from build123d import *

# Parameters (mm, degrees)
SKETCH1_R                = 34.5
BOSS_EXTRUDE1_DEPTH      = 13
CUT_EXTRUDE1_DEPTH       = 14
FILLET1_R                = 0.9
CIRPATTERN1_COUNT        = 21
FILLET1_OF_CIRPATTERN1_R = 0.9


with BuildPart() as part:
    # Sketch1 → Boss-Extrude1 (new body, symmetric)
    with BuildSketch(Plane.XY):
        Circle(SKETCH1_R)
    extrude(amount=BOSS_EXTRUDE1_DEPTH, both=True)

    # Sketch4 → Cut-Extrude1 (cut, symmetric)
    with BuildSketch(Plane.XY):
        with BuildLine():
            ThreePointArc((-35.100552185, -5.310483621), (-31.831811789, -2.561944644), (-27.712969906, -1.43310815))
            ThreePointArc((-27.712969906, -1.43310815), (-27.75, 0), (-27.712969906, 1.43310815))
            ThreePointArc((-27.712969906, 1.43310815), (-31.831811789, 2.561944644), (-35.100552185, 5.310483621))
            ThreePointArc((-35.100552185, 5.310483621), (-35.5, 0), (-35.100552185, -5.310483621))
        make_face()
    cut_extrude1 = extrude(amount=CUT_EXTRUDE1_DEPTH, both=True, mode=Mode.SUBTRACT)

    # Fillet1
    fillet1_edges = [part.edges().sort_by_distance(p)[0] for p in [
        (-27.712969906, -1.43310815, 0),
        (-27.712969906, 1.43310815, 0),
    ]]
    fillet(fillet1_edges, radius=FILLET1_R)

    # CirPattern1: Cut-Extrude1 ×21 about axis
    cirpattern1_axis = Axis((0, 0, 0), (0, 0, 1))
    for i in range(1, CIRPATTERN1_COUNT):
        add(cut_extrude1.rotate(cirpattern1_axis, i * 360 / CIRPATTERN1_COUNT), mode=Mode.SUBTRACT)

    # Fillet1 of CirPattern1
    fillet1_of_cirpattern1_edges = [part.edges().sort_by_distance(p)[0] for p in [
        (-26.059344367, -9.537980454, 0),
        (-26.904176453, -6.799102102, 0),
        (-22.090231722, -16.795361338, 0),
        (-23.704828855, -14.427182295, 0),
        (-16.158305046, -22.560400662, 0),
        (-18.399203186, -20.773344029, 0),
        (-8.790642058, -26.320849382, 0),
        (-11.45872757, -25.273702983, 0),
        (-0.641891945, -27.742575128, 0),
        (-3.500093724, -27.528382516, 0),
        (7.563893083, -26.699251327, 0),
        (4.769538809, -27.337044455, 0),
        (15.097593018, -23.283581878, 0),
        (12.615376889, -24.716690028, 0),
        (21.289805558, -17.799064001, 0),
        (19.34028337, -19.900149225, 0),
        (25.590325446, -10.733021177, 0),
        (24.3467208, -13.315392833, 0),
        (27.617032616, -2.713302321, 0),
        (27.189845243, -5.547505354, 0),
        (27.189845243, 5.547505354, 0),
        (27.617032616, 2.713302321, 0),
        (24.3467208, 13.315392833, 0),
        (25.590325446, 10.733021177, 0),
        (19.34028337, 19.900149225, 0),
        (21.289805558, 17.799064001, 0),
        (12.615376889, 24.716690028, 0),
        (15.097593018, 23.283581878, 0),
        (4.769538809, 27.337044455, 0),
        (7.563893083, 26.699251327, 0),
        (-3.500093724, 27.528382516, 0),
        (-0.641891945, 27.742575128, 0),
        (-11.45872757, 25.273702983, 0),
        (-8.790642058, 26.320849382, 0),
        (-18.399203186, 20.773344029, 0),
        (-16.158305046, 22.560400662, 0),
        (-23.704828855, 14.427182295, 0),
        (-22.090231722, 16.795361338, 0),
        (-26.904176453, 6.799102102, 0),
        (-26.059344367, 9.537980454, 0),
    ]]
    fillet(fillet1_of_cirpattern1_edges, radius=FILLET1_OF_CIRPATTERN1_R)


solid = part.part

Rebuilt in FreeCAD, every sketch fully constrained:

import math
import FreeCAD as App
import Part
import Sketcher
Q = App.Units.Quantity


def edges_at(feature, points):
    """Names of the edges that pass closest to the given points."""
    edges = feature.Shape.Edges
    near = lambda p: min(range(len(edges)), key=lambda i: edges[i].distToShape(Part.Vertex(*p))[0])
    return sorted({f"Edge{near(p) + 1}" for p in points})

doc = App.newDocument("Part")
body = doc.addObject("PartDesign::Body", "Body")

# Sketch on XY plane
sketch1 = doc.addObject("Sketcher::SketchObject", "Sketch")
body.addObject(sketch1)
sketch1.AttachmentSupport = (doc.XY_Plane, [""])
sketch1.MapMode = "FlatFace"
sketch1.addGeometry(Part.Circle(App.Vector(0, 0, 0), App.Vector(0, 0, 1), 34), False)
sketch1.addConstraint([
    Sketcher.Constraint("Coincident", 0, 3, -1, 1),
    Sketcher.Constraint("Diameter", 0, Q("69 mm")),
])
pad1 = doc.addObject("PartDesign::Pad", "Pad")
body.addObject(pad1)
pad1.Profile = sketch1
pad1.Length = 26
pad1.Midplane = True

# Sketch on XY plane
sketch2 = doc.addObject("Sketcher::SketchObject", "Sketch001")
body.addObject(sketch2)
sketch2.AttachmentSupport = (doc.XY_Plane, [""])
sketch2.MapMode = "FlatFace"
sketch2.addGeometry([
    Part.ArcOfCircle(Part.Circle(App.Vector(-27.2, -11.4, 0), App.Vector(0, 0, 1), 10), math.radians(93), math.radians(142)),
    Part.ArcOfCircle(Part.Circle(App.Vector(0, 0, 0), App.Vector(0, 0, 1), 27.7), math.radians(177.04), math.radians(182.96)),
    Part.ArcOfCircle(Part.Circle(App.Vector(-27.2, 11.4, 0), App.Vector(0, 0, 1), 10), math.radians(-142), math.radians(-93)),
    Part.ArcOfCircle(Part.Circle(App.Vector(0, 0, 0), App.Vector(0, 0, 1), 35.5), math.radians(171.4), math.radians(188.6)),
], False)
sketch2.addConstraint([
    Sketcher.Constraint("Coincident", 0, 1, 1, 2),
    Sketcher.Constraint("Coincident", 1, 1, 2, 2),
    Sketcher.Constraint("Coincident", 2, 1, 3, 1),
    Sketcher.Constraint("Coincident", 3, 2, 0, 2),
    Sketcher.Constraint("Coincident", 1, 3, -1, 1),
    Sketcher.Constraint("Coincident", 3, 3, -1, 1),
    Sketcher.Constraint("Equal", 0, 2),
    Sketcher.Constraint("Symmetric", 0, 3, 2, 3, -1),
    Sketcher.Constraint("Radius", 3, Q("35.5 mm")),
    Sketcher.Constraint("Radius", 1, Q("27.75 mm")),
    Sketcher.Constraint("Radius", 0, Q("9.970894 mm")),
    Sketcher.Constraint("DistanceX", 0, 1, -1, 1, Q("27.71297 mm")),
    Sketcher.Constraint("DistanceY", 0, 3, 0, 1, Q("9.957589 mm")),
])
pocket1 = doc.addObject("PartDesign::Pocket", "Pocket")
body.addObject(pocket1)
pocket1.Profile = sketch2
pocket1.Length = 28
pocket1.Midplane = True
doc.recompute()

fillet = doc.addObject("PartDesign::Fillet", "Fillet")
body.addObject(fillet)
fillet.Base = (pocket1, edges_at(pocket1, [(-27.713, -1.433, 0), (-27.713, 1.433, 0)]))
fillet.Radius = 0.9
doc.recompute()

polarpattern = doc.addObject("PartDesign::PolarPattern", "PolarPattern")
body.addObject(polarpattern)
polarpattern.Originals = [pocket1]
polarpattern.Axis = (doc.Z_Axis, [""])
polarpattern.Angle = 360
polarpattern.Occurrences = 21
body.Tip = polarpattern
doc.recompute()

fillet2 = doc.addObject("PartDesign::Fillet", "Fillet001")
body.addObject(fillet2)
fillet2.Base = (polarpattern, edges_at(polarpattern, [
    (-26.059, -9.538, 0),
    (-26.904, -6.799, 0),
    (-22.09, -16.795, 0),
    (-23.705, -14.427, 0),
    (-16.158, -22.56, 0),
    (-18.399, -20.773, 0),
    (-8.791, -26.321, 0),
    (-11.459, -25.274, 0),
    (-0.642, -27.743, 0),
    (-3.5, -27.528, 0),
    (7.564, -26.699, 0),
    (4.77, -27.337, 0),
    (15.098, -23.284, 0),
    (12.615, -24.717, 0),
    (21.29, -17.799, 0),
    (19.34, -19.9, 0),
    (25.59, -10.733, 0),
    (24.347, -13.315, 0),
    (27.617, -2.713, 0),
    (27.19, -5.548, 0),
    (27.19, 5.548, 0),
    (27.617, 2.713, 0),
    (24.347, 13.315, 0),
    (25.59, 10.733, 0),
    (19.34, 19.9, 0),
    (21.29, 17.799, 0),
    (12.615, 24.717, 0),
    (15.098, 23.284, 0),
    (4.77, 27.337, 0),
    (7.564, 26.699, 0),
    (-3.5, 27.528, 0),
    (-0.642, 27.743, 0),
    (-11.459, 25.274, 0),
    (-8.791, 26.321, 0),
    (-18.399, 20.773, 0),
    (-16.158, 22.56, 0),
    (-23.705, 14.427, 0),
    (-22.09, 16.795, 0),
    (-26.904, 6.799, 0),
    (-26.059, 9.538, 0),
]))
fillet2.Radius = 0.9

doc.recompute()
